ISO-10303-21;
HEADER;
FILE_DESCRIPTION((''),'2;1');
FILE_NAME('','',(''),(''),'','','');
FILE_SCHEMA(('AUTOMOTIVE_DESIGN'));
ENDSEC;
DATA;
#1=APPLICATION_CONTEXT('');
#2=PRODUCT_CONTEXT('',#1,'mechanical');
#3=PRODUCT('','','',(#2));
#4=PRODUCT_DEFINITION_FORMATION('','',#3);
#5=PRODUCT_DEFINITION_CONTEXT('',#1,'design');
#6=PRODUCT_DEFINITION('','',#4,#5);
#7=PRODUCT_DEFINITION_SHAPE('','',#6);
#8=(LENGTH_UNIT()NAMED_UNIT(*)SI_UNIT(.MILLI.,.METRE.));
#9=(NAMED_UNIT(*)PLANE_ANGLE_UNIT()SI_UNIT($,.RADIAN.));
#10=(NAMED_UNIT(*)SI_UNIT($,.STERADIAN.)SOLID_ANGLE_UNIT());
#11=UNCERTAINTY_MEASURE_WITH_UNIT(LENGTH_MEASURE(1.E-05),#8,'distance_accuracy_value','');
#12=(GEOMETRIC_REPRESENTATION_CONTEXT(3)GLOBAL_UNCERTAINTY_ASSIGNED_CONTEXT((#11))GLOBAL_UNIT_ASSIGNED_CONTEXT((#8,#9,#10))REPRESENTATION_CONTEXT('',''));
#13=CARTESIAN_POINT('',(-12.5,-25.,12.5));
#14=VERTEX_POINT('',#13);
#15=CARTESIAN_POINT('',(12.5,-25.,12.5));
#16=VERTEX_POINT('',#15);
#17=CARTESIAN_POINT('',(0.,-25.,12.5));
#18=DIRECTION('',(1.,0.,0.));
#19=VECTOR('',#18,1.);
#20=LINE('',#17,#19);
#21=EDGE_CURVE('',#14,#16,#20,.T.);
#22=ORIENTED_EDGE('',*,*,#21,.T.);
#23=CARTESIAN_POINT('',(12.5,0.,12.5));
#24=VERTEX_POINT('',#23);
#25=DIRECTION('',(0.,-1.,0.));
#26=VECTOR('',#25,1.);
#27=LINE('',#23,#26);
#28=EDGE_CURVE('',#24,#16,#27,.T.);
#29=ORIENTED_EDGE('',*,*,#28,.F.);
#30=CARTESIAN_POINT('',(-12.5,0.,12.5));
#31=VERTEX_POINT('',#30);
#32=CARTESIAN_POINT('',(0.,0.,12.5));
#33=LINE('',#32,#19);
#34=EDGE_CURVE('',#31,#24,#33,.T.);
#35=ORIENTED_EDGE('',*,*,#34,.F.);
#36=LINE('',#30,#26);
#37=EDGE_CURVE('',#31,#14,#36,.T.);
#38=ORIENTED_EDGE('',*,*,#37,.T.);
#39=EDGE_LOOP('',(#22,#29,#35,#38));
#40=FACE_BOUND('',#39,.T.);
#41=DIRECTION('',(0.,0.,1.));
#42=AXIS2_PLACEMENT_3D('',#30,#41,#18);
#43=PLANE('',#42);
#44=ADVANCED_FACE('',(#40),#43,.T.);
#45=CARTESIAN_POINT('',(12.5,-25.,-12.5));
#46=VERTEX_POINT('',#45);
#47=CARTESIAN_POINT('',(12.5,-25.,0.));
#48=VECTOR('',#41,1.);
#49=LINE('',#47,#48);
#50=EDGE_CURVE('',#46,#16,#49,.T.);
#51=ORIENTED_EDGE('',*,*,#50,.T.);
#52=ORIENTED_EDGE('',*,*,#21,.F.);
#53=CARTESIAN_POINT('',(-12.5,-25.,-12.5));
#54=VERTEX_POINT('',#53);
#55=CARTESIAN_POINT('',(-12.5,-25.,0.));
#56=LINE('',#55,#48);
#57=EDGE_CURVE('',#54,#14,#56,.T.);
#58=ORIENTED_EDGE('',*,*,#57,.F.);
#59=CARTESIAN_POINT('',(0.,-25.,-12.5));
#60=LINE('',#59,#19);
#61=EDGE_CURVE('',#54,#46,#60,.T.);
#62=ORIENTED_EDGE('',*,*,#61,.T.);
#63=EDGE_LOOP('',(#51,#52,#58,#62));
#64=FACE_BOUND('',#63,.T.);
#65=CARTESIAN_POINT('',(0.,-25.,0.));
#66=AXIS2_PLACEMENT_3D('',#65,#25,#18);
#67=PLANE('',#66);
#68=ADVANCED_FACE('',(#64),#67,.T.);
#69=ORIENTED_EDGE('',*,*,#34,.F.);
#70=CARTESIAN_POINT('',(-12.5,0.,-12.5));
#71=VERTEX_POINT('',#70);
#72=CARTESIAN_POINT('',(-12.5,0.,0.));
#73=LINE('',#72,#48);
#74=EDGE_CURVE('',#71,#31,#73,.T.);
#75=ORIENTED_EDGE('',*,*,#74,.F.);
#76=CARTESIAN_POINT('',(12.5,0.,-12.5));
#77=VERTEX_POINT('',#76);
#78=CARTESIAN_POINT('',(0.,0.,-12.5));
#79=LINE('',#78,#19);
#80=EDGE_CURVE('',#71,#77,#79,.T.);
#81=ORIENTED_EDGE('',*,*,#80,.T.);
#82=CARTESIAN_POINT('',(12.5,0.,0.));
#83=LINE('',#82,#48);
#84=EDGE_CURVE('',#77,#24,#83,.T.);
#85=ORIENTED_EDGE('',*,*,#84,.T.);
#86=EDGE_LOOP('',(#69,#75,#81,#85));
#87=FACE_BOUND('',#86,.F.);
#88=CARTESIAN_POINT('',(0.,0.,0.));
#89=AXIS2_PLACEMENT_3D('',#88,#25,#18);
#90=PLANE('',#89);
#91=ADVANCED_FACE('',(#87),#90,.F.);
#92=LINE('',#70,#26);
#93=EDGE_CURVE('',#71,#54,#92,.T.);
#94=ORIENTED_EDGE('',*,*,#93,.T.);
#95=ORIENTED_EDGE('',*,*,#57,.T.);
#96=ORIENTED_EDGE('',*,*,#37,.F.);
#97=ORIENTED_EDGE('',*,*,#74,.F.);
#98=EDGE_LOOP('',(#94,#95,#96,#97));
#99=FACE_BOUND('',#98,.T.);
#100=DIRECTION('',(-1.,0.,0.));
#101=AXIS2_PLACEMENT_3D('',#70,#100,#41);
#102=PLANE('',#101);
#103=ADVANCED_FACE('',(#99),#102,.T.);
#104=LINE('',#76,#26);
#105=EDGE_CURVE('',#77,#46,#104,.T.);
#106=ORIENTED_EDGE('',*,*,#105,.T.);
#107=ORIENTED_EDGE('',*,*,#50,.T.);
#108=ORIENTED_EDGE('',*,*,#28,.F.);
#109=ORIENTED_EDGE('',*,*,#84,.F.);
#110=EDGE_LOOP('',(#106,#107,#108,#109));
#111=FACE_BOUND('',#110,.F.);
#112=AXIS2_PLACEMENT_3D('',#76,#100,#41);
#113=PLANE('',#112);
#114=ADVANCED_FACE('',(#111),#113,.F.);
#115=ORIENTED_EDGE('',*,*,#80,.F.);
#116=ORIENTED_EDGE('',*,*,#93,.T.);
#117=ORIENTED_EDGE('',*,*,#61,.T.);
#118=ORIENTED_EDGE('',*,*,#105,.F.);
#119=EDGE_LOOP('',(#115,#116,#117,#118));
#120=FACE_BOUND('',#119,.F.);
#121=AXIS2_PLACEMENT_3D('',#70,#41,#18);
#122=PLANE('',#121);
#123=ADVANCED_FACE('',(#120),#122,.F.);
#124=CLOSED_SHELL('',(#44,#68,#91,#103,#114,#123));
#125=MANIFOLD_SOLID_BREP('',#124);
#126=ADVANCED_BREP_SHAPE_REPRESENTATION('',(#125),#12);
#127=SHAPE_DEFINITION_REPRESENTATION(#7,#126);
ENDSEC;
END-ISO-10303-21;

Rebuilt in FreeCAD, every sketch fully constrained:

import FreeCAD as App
import Part
import Sketcher
from FreeCAD import Vector

doc = App.newDocument("Part")
body = doc.addObject("PartDesign::Body", "Body")

# Sketch on XZ plane
sketch1 = body.newObject("Sketcher::SketchObject", "Sketch")
sketch1.AttachmentSupport = (doc.getObject("XZ_Plane"), [""])
sketch1.MapMode = "FlatFace"
sketch1.addGeometry([
    Part.LineSegment(Vector(-12.5, 12.5, 0), Vector(-12.5, -12.5, 0)),
    Part.LineSegment(Vector(-12.5, -12.5, 0), Vector(12.5, -12.5, 0)),
    Part.LineSegment(Vector(12.5, -12.5, 0), Vector(12.5, 12.5, 0)),
    Part.LineSegment(Vector(12.5, 12.5, 0), Vector(-12.5, 12.5, 0)),
], False)
sketch1.addConstraint([
    Sketcher.Constraint("Coincident", 0, 2, 1, 1),
    Sketcher.Constraint("Coincident", 1, 2, 2, 1),
    Sketcher.Constraint("Coincident", 2, 2, 3, 1),
    Sketcher.Constraint("Coincident", 3, 2, 0, 1),
    Sketcher.Constraint("Vertical", 0),
    Sketcher.Constraint("Horizontal", 1),
    Sketcher.Constraint("Vertical", 2),
    Sketcher.Constraint("Horizontal", 3),
    Sketcher.Constraint("Symmetric", 0, 2, 2, 2, -1, 1),
    Sketcher.Constraint("Equal", 3, 0),
    Sketcher.Constraint("DistanceX", 1, 1, 1, 2, 25.0),
])
pad1 = body.newObject("PartDesign::Pad", "Pad")
pad1.Profile = sketch1
pad1.Length = 25

doc.recompute()
